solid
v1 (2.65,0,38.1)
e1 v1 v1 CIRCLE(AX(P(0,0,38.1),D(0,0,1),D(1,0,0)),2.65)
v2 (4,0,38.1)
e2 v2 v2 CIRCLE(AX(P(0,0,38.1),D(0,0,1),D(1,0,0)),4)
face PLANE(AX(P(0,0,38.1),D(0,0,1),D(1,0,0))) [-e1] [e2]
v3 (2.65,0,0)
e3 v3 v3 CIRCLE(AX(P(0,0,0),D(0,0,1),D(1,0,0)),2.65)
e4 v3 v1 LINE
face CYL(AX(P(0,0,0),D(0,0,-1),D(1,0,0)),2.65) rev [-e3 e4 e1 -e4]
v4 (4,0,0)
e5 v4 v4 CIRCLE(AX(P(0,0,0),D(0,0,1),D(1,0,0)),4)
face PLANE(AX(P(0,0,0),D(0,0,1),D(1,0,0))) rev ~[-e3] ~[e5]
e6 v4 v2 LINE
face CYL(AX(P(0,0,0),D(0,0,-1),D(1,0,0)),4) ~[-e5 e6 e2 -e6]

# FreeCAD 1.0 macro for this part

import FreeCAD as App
import Part
import Sketcher

V = App.Vector

doc = App.newDocument("Part")
body = doc.addObject("PartDesign::Body", "Body")

# Sketch on XY plane
sketch1 = doc.addObject("Sketcher::SketchObject", "Sketch")
body.addObject(sketch1)
sketch1.AttachmentSupport = (doc.XY_Plane, [""])
sketch1.MapMode = "FlatFace"
sketch1.addGeometry(Part.Circle(V(0, 0, 0), V(0, 0, 1), 4), False)
sketch1.addGeometry(Part.Circle(V(0, 0, 0), V(0, 0, 1), 2.6), False)
sketch1.addConstraint(Sketcher.Constraint("Coincident", 0, 3, -1, 1))
sketch1.addConstraint(Sketcher.Constraint("Coincident", 1, 3, -1, 1))
sketch1.addConstraint(Sketcher.Constraint("Diameter", 0, 8.0))
sketch1.addConstraint(Sketcher.Constraint("Diameter", 1, 5.3))
pad1 = doc.addObject("PartDesign::Pad", "Pad")
body.addObject(pad1)
pad1.Profile = sketch1
pad1.Length = 38.1

doc.recompute()
